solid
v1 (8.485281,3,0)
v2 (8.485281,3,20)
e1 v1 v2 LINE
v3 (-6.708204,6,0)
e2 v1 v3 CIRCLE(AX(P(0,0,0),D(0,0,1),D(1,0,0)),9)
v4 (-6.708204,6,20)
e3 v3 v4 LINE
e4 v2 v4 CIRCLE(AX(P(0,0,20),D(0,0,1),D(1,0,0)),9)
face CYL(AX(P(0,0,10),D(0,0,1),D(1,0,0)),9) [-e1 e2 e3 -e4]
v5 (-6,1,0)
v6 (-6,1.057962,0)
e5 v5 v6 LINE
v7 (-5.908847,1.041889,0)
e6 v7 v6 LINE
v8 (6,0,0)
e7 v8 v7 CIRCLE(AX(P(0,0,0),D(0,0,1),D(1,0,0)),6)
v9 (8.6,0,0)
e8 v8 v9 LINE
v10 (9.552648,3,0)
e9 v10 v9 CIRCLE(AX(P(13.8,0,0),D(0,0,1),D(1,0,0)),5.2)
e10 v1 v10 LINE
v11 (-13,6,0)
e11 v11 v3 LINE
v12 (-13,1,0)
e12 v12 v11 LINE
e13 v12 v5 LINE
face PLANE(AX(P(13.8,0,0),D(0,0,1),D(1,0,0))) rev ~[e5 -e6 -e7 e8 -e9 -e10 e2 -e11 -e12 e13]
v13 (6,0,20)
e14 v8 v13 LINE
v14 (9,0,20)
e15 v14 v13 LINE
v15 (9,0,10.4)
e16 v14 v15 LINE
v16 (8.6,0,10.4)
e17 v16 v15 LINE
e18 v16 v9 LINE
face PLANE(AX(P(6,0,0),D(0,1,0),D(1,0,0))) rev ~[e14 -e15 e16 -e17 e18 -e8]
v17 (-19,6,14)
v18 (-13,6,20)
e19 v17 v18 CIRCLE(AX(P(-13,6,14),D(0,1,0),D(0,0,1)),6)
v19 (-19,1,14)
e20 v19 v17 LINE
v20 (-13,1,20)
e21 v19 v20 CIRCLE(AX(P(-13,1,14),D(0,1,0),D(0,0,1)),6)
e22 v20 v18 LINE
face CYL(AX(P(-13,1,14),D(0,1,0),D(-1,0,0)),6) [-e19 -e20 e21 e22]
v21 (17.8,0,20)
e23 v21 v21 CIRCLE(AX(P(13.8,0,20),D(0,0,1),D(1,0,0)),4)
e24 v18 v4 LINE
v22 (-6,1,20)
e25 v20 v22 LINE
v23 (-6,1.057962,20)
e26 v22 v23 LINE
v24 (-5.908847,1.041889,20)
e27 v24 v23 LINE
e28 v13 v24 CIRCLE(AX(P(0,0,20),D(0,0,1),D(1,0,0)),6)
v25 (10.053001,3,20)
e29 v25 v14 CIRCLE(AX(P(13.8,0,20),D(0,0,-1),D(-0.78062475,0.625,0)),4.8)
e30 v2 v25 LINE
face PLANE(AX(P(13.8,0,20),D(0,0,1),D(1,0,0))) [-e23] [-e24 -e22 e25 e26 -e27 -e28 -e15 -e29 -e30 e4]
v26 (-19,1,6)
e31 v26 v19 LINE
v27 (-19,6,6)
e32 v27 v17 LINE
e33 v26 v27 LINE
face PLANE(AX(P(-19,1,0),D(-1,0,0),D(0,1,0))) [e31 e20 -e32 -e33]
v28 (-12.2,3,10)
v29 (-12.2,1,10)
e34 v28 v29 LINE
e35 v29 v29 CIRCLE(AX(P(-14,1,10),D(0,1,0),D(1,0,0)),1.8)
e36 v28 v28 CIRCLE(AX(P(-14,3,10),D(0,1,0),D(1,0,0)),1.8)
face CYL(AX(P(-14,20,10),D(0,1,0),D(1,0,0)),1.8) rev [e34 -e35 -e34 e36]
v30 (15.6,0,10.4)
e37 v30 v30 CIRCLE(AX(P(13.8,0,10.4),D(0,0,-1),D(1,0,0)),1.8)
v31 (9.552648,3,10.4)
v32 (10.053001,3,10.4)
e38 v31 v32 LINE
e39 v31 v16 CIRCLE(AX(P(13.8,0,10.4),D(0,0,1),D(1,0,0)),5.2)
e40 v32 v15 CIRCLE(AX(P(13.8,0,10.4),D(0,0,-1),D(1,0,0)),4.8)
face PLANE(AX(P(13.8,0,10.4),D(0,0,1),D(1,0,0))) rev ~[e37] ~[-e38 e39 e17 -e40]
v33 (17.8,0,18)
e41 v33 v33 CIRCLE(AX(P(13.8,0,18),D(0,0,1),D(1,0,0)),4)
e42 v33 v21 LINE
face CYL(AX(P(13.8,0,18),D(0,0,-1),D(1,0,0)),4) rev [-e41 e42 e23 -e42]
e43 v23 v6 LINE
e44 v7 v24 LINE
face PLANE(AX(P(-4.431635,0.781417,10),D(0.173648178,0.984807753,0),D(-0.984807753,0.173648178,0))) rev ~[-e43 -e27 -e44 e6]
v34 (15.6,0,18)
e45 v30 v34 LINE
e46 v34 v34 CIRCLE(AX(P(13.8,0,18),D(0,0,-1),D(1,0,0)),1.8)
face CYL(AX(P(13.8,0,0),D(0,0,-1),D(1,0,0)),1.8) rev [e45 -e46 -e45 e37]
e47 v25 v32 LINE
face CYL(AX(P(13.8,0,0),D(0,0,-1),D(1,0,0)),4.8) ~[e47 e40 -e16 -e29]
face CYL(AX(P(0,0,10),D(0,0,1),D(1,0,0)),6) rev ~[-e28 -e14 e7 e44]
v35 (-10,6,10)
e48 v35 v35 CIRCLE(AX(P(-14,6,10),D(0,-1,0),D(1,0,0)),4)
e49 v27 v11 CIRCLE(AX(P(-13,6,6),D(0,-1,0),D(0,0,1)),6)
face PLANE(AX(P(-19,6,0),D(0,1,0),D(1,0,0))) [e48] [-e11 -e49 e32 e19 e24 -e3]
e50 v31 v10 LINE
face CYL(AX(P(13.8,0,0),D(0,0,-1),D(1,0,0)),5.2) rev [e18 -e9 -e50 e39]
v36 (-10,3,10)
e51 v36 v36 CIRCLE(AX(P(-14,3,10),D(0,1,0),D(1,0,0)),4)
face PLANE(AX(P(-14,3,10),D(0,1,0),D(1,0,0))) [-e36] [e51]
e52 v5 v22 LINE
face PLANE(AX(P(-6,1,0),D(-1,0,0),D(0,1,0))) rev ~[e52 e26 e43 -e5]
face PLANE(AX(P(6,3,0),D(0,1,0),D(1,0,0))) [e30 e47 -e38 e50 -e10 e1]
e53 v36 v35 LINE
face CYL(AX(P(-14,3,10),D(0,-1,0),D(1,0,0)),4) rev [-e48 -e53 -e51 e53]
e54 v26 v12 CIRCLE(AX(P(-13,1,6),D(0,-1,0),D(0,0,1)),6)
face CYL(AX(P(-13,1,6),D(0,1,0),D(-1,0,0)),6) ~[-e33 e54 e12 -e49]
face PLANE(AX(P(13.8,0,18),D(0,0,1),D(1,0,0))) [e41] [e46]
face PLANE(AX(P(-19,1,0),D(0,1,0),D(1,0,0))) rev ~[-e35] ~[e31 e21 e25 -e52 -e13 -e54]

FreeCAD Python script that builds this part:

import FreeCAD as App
import Part
import Sketcher

V = App.Vector
Q = App.Units.Quantity


def edges_at(feature, points):
    """Names of the edges that pass closest to the given points."""
    edges = feature.Shape.Edges
    near = lambda p: min(range(len(edges)), key=lambda i: edges[i].distToShape(Part.Vertex(*p))[0])
    return sorted({f"Edge{near(p) + 1}" for p in points})


def add_polygon(sketch, points):
    """Adds a closed chain of lines whose ends are joined by coincident constraints."""
    first, n = sketch.GeometryCount, len(points)
    for a, b in zip(points, points[1:] + points[:1]):
        sketch.addGeometry(Part.LineSegment(App.Vector(*a, 0), App.Vector(*b, 0)), False)
    for i in range(n):
        sketch.addConstraint(Sketcher.Constraint("Coincident", first + i, 2, first + (i + 1) % n, 1))

doc = App.newDocument("Part")
body = doc.addObject("PartDesign::Body", "Body")

sketch1 = body.newObject("Sketcher::SketchObject", "Sketch")
sketch1.AttachmentSupport = (doc.getObject("XZ_Plane"), [""])
sketch1.MapMode = "FlatFace"
sketch1.AttachmentOffset = App.Placement(V(0, 0, -3), App.Rotation())
sketch1.addGeometry(Part.Circle(V(-14, 10, 0), V(0, 0, 1), 4), False)
sketch1.addConstraint([
    Sketcher.Constraint("Diameter", 0, Q("8 mm")),
    Sketcher.Constraint("DistanceX", 0, 3, -1, 1, Q("14 mm")),
    Sketcher.Constraint("DistanceY", -1, 1, 0, 3, Q("10 mm")),
])
pad1 = body.newObject("PartDesign::Pad", "Pad")
pad1.Profile = sketch1
pad1.Length = 20
pad1.Reversed = True
body2 = doc.addObject("PartDesign::Body", "Body001")

sketch2 = body2.newObject("Sketcher::SketchObject", "Sketch001")
sketch2.AttachmentSupport = (doc.getObject("XY_Plane001"), [""])
sketch2.MapMode = "FlatFace"
sketch2.AttachmentOffset = App.Placement(V(0, 0, 18), App.Rotation())
sketch2.addGeometry(Part.Circle(V(13.8, 0, 0), V(0, 0, 1), 4), False)
sketch2.addConstraint([
    Sketcher.Constraint("PointOnObject", 0, 3, -1),
    Sketcher.Constraint("Diameter", 0, Q("8 mm")),
    Sketcher.Constraint("DistanceX", -1, 1, 0, 3, Q("13.8 mm")),
])
pad2 = body2.newObject("PartDesign::Pad", "Pad001")
pad2.Profile = sketch2
pad2.Length = 2
body3 = doc.addObject("PartDesign::Body", "Body002")
body3.AllowCompound = True

sketch3 = body3.newObject("Sketcher::SketchObject", "Sketch002")
sketch3.AttachmentSupport = (doc.getObject("XY_Plane002"), [""])
sketch3.MapMode = "FlatFace"
sketch3.addGeometry(Part.Circle(V(14, 0, 0), V(0, 0, 1), 5), False)
sketch3.addConstraint([
    Sketcher.Constraint("PointOnObject", 0, 3, -1),
    Sketcher.Constraint("Diameter", 0, Q("10.4 mm")),
    Sketcher.Constraint("DistanceX", -1, 1, 0, 3, Q("13.8 mm")),
])
pad3 = body3.newObject("PartDesign::Pad", "Pad002")
pad3.Profile = sketch3
pad3.Length = 10.4
doc.recompute()

boolean = body3.newObject("PartDesign::Boolean", "Boolean")
boolean.Type = "Fuse"
boolean.addObjects([body])
doc.recompute()

boolean2 = body3.newObject("PartDesign::Boolean", "Boolean001")
boolean2.Type = "Fuse"
boolean2.addObjects([body2])
body4 = doc.addObject("PartDesign::Body", "Body003")

sketch4 = body4.newObject("Sketcher::SketchObject", "Sketch003")
sketch4.AttachmentSupport = (doc.getObject("XZ_Plane003"), [""])
sketch4.MapMode = "FlatFace"
sketch4.AttachmentOffset = App.Placement(V(0, 0, -20), App.Rotation())
sketch4.addGeometry(Part.Circle(V(-14, 10, 0), V(0, 0, 1), 1.8), False)
sketch4.addConstraint([
    Sketcher.Constraint("Diameter", 0, Q("3.6 mm")),
    Sketcher.Constraint("DistanceX", 0, 3, -1, 1, Q("14 mm")),
    Sketcher.Constraint("DistanceY", -1, 1, 0, 3, Q("10 mm")),
])
pad4 = body4.newObject("PartDesign::Pad", "Pad003")
pad4.Profile = sketch4
pad4.Length = 50
body5 = doc.addObject("PartDesign::Body", "Body004")

sketch5 = body5.newObject("Sketcher::SketchObject", "Sketch004")
sketch5.AttachmentSupport = (doc.getObject("XZ_Plane004"), [""])
sketch5.MapMode = "FlatFace"
add_polygon(sketch5, [(0, 20), (0, 0), (6, 0), (6, 20)])
sketch5.addConstraint([
    Sketcher.Constraint("Vertical", 0),
    Sketcher.Constraint("Horizontal", 1),
    Sketcher.Constraint("Vertical", 2),
    Sketcher.Constraint("Horizontal", 3),
    Sketcher.Constraint("Coincident", 0, 2, -1, 1),
    Sketcher.Constraint("DistanceX", 1, 1, 1, 2, Q("6 mm")),
    Sketcher.Constraint("DistanceY", 0, 2, 0, 1, Q("20 mm")),
])
revolution = body5.newObject("PartDesign::Revolution", "Revolution")
revolution.Profile = sketch5
revolution.ReferenceAxis = (sketch5, ["V_Axis"])
revolution.Angle = 180
body6 = doc.addObject("PartDesign::Body", "Body005")
body6.AllowCompound = True

sketch6 = body6.newObject("Sketcher::SketchObject", "Sketch005")
sketch6.AttachmentSupport = (doc.getObject("XY_Plane005"), [""])
sketch6.MapMode = "FlatFace"
sketch6.addGeometry(Part.Circle(V(13.8, 0, 0), V(0, 0, 1), 1.8), False)
sketch6.addConstraint([
    Sketcher.Constraint("PointOnObject", 0, 3, -1),
    Sketcher.Constraint("Diameter", 0, Q("3.6 mm")),
    Sketcher.Constraint("DistanceX", -1, 1, 0, 3, Q("13.8 mm")),
])
pad5 = body6.newObject("PartDesign::Pad", "Pad004")
pad5.Profile = sketch6
pad5.Length = 20
doc.recompute()

boolean3 = body6.newObject("PartDesign::Boolean", "Boolean002")
boolean3.Type = "Fuse"
boolean3.addObjects([body4])
doc.recompute()

boolean4 = body6.newObject("PartDesign::Boolean", "Boolean003")
boolean4.Type = "Fuse"
boolean4.addObjects([body5])
body7 = doc.addObject("PartDesign::Body", "Body006")

sketch7 = body7.newObject("Sketcher::SketchObject", "Sketch006")
sketch7.AttachmentSupport = (doc.getObject("XY_Plane006"), [""])
sketch7.MapMode = "FlatFace"
add_polygon(sketch7, [(-19, 6), (-19, 1), (-6, 1), (-6, 6)])
sketch7.addConstraint([
    Sketcher.Constraint("Vertical", 0),
    Sketcher.Constraint("Horizontal", 1),
    Sketcher.Constraint("Vertical", 2),
    Sketcher.Constraint("Horizontal", 3),
    Sketcher.Constraint("DistanceX", 1, 1, 1, 2, Q("13 mm")),
    Sketcher.Constraint("DistanceY", 0, 2, 0, 1, Q("5 mm")),
    Sketcher.Constraint("DistanceX", 0, 2, -1, 1, Q("19 mm")),
    Sketcher.Constraint("DistanceY", -1, 1, 0, 2, Q("1 mm")),
])
pad6 = body7.newObject("PartDesign::Pad", "Pad005")
pad6.Profile = sketch7
pad6.Length = 20
doc.recompute()

fillet = body7.newObject("PartDesign::Fillet", "Fillet")
fillet.Base = (pad6, edges_at(pad6, [(-19, 3.5, 20), (-19, 3.5, 0)]))
fillet.Radius = 6
body8 = doc.addObject("PartDesign::Body", "Body007")

sketch8 = body8.newObject("Sketcher::SketchObject", "Sketch007")
sketch8.AttachmentSupport = (doc.getObject("XY_Plane007"), [""])
sketch8.MapMode = "FlatFace"
sketch8.addGeometry(Part.Circle(V(13.8, 0, 0), V(0, 0, 1), 4.8), False)
sketch8.addConstraint([
    Sketcher.Constraint("PointOnObject", 0, 3, -1),
    Sketcher.Constraint("Diameter", 0, Q("9.6 mm")),
    Sketcher.Constraint("DistanceX", -1, 1, 0, 3, Q("13.8 mm")),
])
pad7 = body8.newObject("PartDesign::Pad", "Pad006")
pad7.Profile = sketch8
pad7.Length = 20
body9 = doc.addObject("PartDesign::Body", "Body008")

sketch9 = body9.newObject("Sketcher::SketchObject", "Sketch008")
sketch9.AttachmentSupport = (doc.getObject("XZ_Plane008"), [""])
sketch9.MapMode = "FlatFace"
add_polygon(sketch9, [(0, 20), (0, 0), (9, 0), (9, 20)])
sketch9.addConstraint([
    Sketcher.Constraint("Vertical", 0),
    Sketcher.Constraint("Horizontal", 1),
    Sketcher.Constraint("Vertical", 2),
    Sketcher.Constraint("Horizontal", 3),
    Sketcher.Constraint("Coincident", 0, 2, -1, 1),
    Sketcher.Constraint("DistanceX", 1, 1, 1, 2, Q("9 mm")),
    Sketcher.Constraint("DistanceY", 0, 2, 0, 1, Q("20 mm")),
])
revolution2 = body9.newObject("PartDesign::Revolution", "Revolution001")
revolution2.Profile = sketch9
revolution2.ReferenceAxis = (sketch9, ["V_Axis"])
revolution2.Angle = 170
body10 = doc.addObject("PartDesign::Body", "Body009")
body10.AllowCompound = True

sketch10 = body10.newObject("Sketcher::SketchObject", "Sketch009")
sketch10.AttachmentSupport = (doc.getObject("XY_Plane009"), [""])
sketch10.MapMode = "FlatFace"
add_polygon(sketch10, [(6, 3), (6, 0), (13.8, 0), (13.8, 3)])
sketch10.addConstraint([
    Sketcher.Constraint("Vertical", 0),
    Sketcher.Constraint("Horizontal", 1),
    Sketcher.Constraint("Vertical", 2),
    Sketcher.Constraint("Horizontal", 3),
    Sketcher.Constraint("PointOnObject", 0, 2, -1),
    Sketcher.Constraint("DistanceY", 0, 2, 0, 1, Q("3 mm")),
    Sketcher.Constraint("DistanceX", 1, 1, 1, 2, Q("7.8 mm")),
    Sketcher.Constraint("DistanceX", -1, 1, 0, 2, Q("6 mm")),
])
pad8 = body10.newObject("PartDesign::Pad", "Pad007")
pad8.Profile = sketch10
pad8.Length = 20
doc.recompute()

boolean5 = body10.newObject("PartDesign::Boolean", "Boolean004")
boolean5.Type = "Fuse"
boolean5.addObjects([body7])
doc.recompute()

boolean6 = body10.newObject("PartDesign::Boolean", "Boolean005")
boolean6.Type = "Fuse"
boolean6.addObjects([body8])
doc.recompute()

boolean7 = body10.newObject("PartDesign::Boolean", "Boolean006")
boolean7.Type = "Fuse"
boolean7.addObjects([body9])
doc.recompute()

boolean8 = body10.newObject("PartDesign::Boolean", "Boolean007")
boolean8.Type = "Cut"
boolean8.addObjects([body6])
doc.recompute()

boolean9 = body10.newObject("PartDesign::Boolean", "Boolean008")
boolean9.Type = "Cut"
boolean9.addObjects([body3])

doc.recompute()
